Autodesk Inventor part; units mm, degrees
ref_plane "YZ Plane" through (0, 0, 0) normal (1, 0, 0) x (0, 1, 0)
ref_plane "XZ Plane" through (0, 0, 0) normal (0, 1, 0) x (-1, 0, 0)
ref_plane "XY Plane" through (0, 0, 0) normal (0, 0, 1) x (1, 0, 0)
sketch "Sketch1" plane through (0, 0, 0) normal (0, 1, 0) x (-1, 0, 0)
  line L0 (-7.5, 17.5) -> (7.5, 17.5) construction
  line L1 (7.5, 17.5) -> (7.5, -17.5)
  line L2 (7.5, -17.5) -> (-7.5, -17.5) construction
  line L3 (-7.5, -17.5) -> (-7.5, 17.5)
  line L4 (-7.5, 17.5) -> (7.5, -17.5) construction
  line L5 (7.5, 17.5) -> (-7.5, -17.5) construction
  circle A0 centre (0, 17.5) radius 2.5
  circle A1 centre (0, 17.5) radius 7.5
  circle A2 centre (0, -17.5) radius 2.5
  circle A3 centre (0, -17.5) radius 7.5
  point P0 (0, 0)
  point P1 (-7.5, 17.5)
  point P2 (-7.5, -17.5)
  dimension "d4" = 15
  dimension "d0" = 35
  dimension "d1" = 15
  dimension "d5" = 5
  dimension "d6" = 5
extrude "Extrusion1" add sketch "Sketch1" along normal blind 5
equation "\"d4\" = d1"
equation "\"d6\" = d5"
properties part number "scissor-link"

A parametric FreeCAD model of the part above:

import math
import FreeCAD as App
import Part
import Sketcher

V = App.Vector
Q = App.Units.Quantity

doc = App.newDocument("Part")
params = doc.addObject("Spreadsheet::Sheet", "Params")
for row, (alias, value) in enumerate([
    ("sketch1_diameter", "5 mm"),
    ("sketch1_radius", "7.5 mm"),
    ("sketch1_height", "35 mm"),
    ("pad1_length", "5 mm"),
], start=1):
    params.set(f"A{row}", alias)
    params.set(f"B{row}", "=" + value)
    params.setAlias(f"B{row}", alias)

body = doc.addObject("PartDesign::Body", "Body")

sketch1 = body.newObject("Sketcher::SketchObject", "Sketch")
sketch1.AttachmentSupport = (doc.getObject("XZ_Plane"), [""])
sketch1.MapMode = "FlatFace"
sketch1.addGeometry(Part.ArcOfCircle(Part.Circle(V(0, 17.5, 0), V(0, 0, 1), 7.5), math.radians(0), math.radians(180)), False)
sketch1.addGeometry(Part.LineSegment(V(7.5, 17.5, 0), V(7.5, -17.5, 0)), False)
sketch1.addGeometry(Part.ArcOfCircle(Part.Circle(V(0, -17.5, 0), V(0, 0, 1), 7.5), math.radians(180), math.radians(360)), False)
sketch1.addGeometry(Part.LineSegment(V(-7.5, -17.5, 0), V(-7.5, 17.5, 0)), False)
sketch1.addGeometry(Part.Circle(V(0, 17.5, 0), V(0, 0, 1), 2.5), False)
sketch1.addGeometry(Part.Circle(V(0, -17.5, 0), V(0, 0, 1), 2.5), False)
sketch1.addConstraint(Sketcher.Constraint("Tangent", 0, 1, 1, 1))
sketch1.addConstraint(Sketcher.Constraint("Tangent", 1, 2, 2, 2))
sketch1.addConstraint(Sketcher.Constraint("Tangent", 2, 1, 3, 1))
sketch1.addConstraint(Sketcher.Constraint("Tangent", 3, 2, 0, 2))
sketch1.addConstraint(Sketcher.Constraint("Vertical", 1))
sketch1.addConstraint(Sketcher.Constraint("Vertical", 3))
sketch1.addConstraint(Sketcher.Constraint("Coincident", 4, 3, 0, 3))
sketch1.addConstraint(Sketcher.Constraint("Coincident", 5, 3, 2, 3))
sketch1.addConstraint(Sketcher.Constraint("Equal", 4, 5))
sketch1.addConstraint(Sketcher.Constraint("Symmetric", 0, 3, 2, 3, -1, 1))
sketch1.addConstraint(Sketcher.Constraint("Diameter", 4, Q("5 mm")))
sketch1.addConstraint(Sketcher.Constraint("Radius", 0, Q("7.5 mm")))
sketch1.addConstraint(Sketcher.Constraint("DistanceY", 1, 2, 1, 1, Q("35 mm")))
sketch1.setExpression("Constraints[10]", "Params.sketch1_diameter")
sketch1.setExpression("Constraints[11]", "Params.sketch1_radius")
sketch1.setExpression("Constraints[12]", "Params.sketch1_height")
pad1 = body.newObject("PartDesign::Pad", "Pad")
pad1.Profile = sketch1
pad1.setExpression("Length", "Params.pad1_length")
pad1.Reversed = True

doc.recompute()
